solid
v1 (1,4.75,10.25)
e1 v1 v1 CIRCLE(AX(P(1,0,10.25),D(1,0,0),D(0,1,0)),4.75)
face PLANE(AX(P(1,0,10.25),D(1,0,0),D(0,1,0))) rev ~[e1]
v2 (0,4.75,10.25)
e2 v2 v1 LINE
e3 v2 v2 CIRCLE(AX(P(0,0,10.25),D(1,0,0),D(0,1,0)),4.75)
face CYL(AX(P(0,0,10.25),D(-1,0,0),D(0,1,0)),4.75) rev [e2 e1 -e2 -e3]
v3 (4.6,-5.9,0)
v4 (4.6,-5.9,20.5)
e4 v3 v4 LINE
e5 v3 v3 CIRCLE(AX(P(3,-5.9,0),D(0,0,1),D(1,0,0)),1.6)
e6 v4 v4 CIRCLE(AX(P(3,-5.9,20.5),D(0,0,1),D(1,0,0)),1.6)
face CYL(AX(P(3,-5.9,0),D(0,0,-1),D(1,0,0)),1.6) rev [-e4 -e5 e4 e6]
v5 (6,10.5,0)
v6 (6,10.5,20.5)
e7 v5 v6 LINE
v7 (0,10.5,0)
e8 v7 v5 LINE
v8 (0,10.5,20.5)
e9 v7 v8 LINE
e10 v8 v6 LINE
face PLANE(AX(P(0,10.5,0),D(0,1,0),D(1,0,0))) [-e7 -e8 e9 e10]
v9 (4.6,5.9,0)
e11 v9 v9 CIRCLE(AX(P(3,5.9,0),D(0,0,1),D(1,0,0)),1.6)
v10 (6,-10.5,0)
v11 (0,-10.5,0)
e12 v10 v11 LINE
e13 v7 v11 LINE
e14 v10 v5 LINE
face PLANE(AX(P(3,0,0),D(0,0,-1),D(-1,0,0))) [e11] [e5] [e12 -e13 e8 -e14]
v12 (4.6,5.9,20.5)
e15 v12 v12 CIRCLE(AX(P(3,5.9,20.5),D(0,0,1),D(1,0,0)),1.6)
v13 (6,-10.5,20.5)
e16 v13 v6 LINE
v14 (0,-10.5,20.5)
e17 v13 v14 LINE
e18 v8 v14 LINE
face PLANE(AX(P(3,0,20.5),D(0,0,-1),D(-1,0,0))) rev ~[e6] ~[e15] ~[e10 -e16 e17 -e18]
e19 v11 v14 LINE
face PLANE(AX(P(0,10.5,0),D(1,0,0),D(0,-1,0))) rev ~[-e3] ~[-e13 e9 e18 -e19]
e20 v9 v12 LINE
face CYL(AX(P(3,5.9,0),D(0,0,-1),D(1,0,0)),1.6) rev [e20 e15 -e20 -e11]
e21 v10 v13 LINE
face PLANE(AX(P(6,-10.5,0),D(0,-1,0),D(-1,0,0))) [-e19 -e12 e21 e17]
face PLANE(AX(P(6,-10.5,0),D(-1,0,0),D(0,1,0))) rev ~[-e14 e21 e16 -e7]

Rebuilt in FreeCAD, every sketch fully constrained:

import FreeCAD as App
import Part
import Sketcher

V = App.Vector

doc = App.newDocument("Part")
body = doc.addObject("PartDesign::Body", "Body")

# Sketch on XY plane
sketch1 = doc.addObject("Sketcher::SketchObject", "Sketch")
body.addObject(sketch1)
sketch1.AttachmentSupport = (doc.XY_Plane, [""])
sketch1.MapMode = "FlatFace"
sketch1.addGeometry([
    Part.LineSegment(V(0, 10.5, 0), V(0, -10.5, 0)),  # 0
    Part.LineSegment(V(0, -10.5, 0), V(6, -10.5, 0)),  # 1
    Part.LineSegment(V(6, -10.5, 0), V(6, 10.5, 0)),  # 2
    Part.LineSegment(V(6, 10.5, 0), V(0, 10.5, 0)),  # 3
    Part.Circle(V(3, -5.9, 0), V(0, 0, 1), 1.6),  # 4
    Part.Circle(V(3, 5.9, 0), V(0, 0, 1), 1.6),  # 5
], False)
sketch1.addConstraint([
    Sketcher.Constraint("Coincident", 0, 2, 1, 1),
    Sketcher.Constraint("Coincident", 1, 2, 2, 1),
    Sketcher.Constraint("Coincident", 2, 2, 3, 1),
    Sketcher.Constraint("Coincident", 3, 2, 0, 1),
    Sketcher.Constraint("Vertical", 0),
    Sketcher.Constraint("Horizontal", 1),
    Sketcher.Constraint("Vertical", 2),
    Sketcher.Constraint("Horizontal", 3),
    Sketcher.Constraint("Equal", 4, 5),
    Sketcher.Constraint("Symmetric", 0, 2, 3, 2, -1, 1),
    Sketcher.Constraint("Symmetric", 4, 3, 5, 3, -1),
    Sketcher.Constraint("Diameter", 4, 3.2),
    Sketcher.Constraint("DistanceX", 1, 1, 1, 2, 6.0),
    Sketcher.Constraint("DistanceY", 0, 2, 0, 1, 21.0),
    Sketcher.Constraint("DistanceX", -1, 1, 4, 3, 3.0),
    Sketcher.Constraint("DistanceY", 4, 3, -1, 1, 5.9),
])
pad1 = doc.addObject("PartDesign::Pad", "Pad")
body.addObject(pad1)
pad1.Profile = sketch1
pad1.Length = 20.5

# Sketch on YZ plane
sketch2 = doc.addObject("Sketcher::SketchObject", "Sketch001")
body.addObject(sketch2)
sketch2.AttachmentSupport = (doc.YZ_Plane, [""])
sketch2.MapMode = "FlatFace"
sketch2.addGeometry(Part.Circle(V(0, 10.25, 0), V(0, 0, 1), 4.75), False)
sketch2.addConstraint([
    Sketcher.Constraint("PointOnObject", 0, 3, -2),
    Sketcher.Constraint("Diameter", 0, 9.5),
    Sketcher.Constraint("DistanceY", -1, 1, 0, 3, 10.25),
])
pocket1 = doc.addObject("PartDesign::Pocket", "Pocket")
body.addObject(pocket1)
pocket1.Profile = sketch2
pocket1.Length = 1
pocket1.Reversed = True

doc.recompute()
